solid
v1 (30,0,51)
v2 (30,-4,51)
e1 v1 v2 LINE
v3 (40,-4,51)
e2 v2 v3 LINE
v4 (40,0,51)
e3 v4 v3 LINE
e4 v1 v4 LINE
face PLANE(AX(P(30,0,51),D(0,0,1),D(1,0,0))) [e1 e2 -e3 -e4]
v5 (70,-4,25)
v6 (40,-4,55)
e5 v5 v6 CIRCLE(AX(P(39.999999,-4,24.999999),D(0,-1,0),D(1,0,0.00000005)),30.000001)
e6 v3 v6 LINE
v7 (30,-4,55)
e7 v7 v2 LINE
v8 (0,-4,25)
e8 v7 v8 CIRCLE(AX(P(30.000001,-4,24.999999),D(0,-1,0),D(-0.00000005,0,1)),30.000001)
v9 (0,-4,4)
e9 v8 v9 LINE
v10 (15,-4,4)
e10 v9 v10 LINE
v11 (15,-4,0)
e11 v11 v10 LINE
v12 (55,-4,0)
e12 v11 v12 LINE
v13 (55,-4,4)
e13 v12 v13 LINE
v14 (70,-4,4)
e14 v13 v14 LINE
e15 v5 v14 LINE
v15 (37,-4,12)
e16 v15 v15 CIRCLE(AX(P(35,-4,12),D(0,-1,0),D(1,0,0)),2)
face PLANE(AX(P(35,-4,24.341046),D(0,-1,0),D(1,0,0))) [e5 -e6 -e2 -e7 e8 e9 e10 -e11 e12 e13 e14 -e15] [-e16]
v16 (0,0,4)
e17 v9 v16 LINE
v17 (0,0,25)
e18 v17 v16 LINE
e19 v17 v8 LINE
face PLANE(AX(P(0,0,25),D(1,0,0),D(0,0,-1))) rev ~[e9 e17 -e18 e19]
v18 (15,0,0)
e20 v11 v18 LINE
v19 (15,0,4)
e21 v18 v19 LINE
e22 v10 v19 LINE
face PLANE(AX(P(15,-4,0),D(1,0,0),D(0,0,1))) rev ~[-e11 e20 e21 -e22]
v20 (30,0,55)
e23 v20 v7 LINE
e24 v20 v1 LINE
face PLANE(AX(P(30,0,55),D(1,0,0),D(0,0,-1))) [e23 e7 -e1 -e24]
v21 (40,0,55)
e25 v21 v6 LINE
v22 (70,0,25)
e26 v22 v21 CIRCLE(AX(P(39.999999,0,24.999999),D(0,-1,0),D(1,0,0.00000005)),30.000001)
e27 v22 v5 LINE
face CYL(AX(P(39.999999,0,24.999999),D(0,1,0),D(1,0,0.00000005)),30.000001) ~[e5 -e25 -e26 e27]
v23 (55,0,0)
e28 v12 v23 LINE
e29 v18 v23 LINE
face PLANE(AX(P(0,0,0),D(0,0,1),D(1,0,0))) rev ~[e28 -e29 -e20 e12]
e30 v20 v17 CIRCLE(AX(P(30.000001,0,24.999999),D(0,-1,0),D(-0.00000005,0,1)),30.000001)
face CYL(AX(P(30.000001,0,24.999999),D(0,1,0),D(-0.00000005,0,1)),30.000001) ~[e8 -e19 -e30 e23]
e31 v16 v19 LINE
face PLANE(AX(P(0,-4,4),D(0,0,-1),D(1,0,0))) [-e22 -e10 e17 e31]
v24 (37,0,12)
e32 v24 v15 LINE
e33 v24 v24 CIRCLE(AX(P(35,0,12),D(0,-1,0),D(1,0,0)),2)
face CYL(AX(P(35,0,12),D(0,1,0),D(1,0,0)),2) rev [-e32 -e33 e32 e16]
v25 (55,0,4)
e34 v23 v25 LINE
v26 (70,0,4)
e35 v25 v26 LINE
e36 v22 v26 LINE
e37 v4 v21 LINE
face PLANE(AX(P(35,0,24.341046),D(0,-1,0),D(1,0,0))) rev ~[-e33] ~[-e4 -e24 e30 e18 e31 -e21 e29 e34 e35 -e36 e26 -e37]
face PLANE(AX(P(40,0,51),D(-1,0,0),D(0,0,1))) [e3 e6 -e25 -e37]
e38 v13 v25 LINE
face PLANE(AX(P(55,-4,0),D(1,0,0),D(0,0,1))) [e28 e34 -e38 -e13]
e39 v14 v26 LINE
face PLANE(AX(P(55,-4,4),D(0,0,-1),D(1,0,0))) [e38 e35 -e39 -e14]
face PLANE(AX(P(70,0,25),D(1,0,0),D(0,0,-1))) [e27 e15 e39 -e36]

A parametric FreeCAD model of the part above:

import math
import FreeCAD as App
import Part
import Sketcher

V = App.Vector

doc = App.newDocument("Part")
body = doc.addObject("PartDesign::Body", "Body")

sketch1 = doc.addObject("Sketcher::SketchObject", "Sketch")
body.addObject(sketch1)
sketch1.AttachmentSupport = (doc.XZ_Plane, [""])
sketch1.MapMode = "FlatFace"
sketch1.addGeometry([
    Part.LineSegment(V(0, 25, 0), V(0, 0, 0)),
    Part.LineSegment(V(0, 0, 0), V(70, 0, 0)),
    Part.LineSegment(V(70, 0, 0), V(70, 25, 0)),
    Part.ArcOfCircle(Part.Circle(V(40, 25, 0), V(0, 0, 1), 30), math.radians(0), math.radians(90)),
    Part.LineSegment(V(40, 55, 0), V(40, 51, 0)),
    Part.LineSegment(V(40, 51, 0), V(30, 51, 0)),
    Part.LineSegment(V(30, 51, 0), V(30, 55, 0)),
    Part.ArcOfCircle(Part.Circle(V(30, 25, 0), V(0, 0, 1), 30), math.radians(90), math.radians(180)),
    Part.Circle(V(35, 12, 0), V(0, 0, 1), 2),
], False)
sketch1.addConstraint([
    Sketcher.Constraint("Coincident", 0, 2, 1, 1),
    Sketcher.Constraint("Coincident", 1, 2, 2, 1),
    Sketcher.Constraint("Tangent", 2, 2, 3, 1),
    Sketcher.Constraint("Coincident", 3, 2, 4, 1),
    Sketcher.Constraint("Coincident", 4, 2, 5, 1),
    Sketcher.Constraint("Coincident", 5, 2, 6, 1),
    Sketcher.Constraint("Coincident", 6, 2, 7, 1),
    Sketcher.Constraint("Tangent", 7, 2, 0, 1),
    Sketcher.Constraint("Vertical", 0),
    Sketcher.Constraint("Horizontal", 1),
    Sketcher.Constraint("Vertical", 2),
    Sketcher.Constraint("Vertical", 4),
    Sketcher.Constraint("Horizontal", 5),
    Sketcher.Constraint("Vertical", 6),
    Sketcher.Constraint("Coincident", 0, 2, -1, 1),
    Sketcher.Constraint("Equal", 3, 7),
    Sketcher.Constraint("Horizontal", 3, 3, 7, 3),
    Sketcher.Constraint("Vertical", 7, 3, 5, 2),
    Sketcher.Constraint("Diameter", 8, 4.0),
    Sketcher.Constraint("Radius", 3, 30.000001),
    Sketcher.Constraint("DistanceX", 1, 1, 1, 2, 70.0),
    Sketcher.Constraint("DistanceX", 5, 2, 5, 1, 10.0),
    Sketcher.Constraint("DistanceY", 0, 2, 0, 1, 25.0),
    Sketcher.Constraint("DistanceY", 4, 2, 4, 1, 4.0),
    Sketcher.Constraint("DistanceX", -1, 1, 8, 3, 35.0),
    Sketcher.Constraint("DistanceY", -1, 1, 8, 3, 12.0),
])
pad1 = doc.addObject("PartDesign::Pad", "Pad")
body.addObject(pad1)
pad1.Profile = sketch1
pad1.Length = 4

sketch2 = doc.addObject("Sketcher::SketchObject", "Sketch001")
body.addObject(sketch2)
sketch2.AttachmentSupport = (doc.XZ_Plane, [""])
sketch2.MapMode = "FlatFace"
sketch2.AttachmentOffset = App.Placement(V(0, 0, 4), App.Rotation())
sketch2.addGeometry([
    Part.LineSegment(V(0, 4, 0), V(0, 0, 0)),
    Part.LineSegment(V(0, 0, 0), V(15, 0, 0)),
    Part.LineSegment(V(15, 0, 0), V(15, 4, 0)),
    Part.LineSegment(V(15, 4, 0), V(0, 4, 0)),
    Part.LineSegment(V(55, 4, 0), V(55, 0, 0)),
    Part.LineSegment(V(55, 0, 0), V(70, 0, 0)),
    Part.LineSegment(V(70, 0, 0), V(70, 4, 0)),
    Part.LineSegment(V(70, 4, 0), V(55, 4, 0)),
], False)
sketch2.addConstraint([
    Sketcher.Constraint("Coincident", 0, 2, 1, 1),
    Sketcher.Constraint("Coincident", 1, 2, 2, 1),
    Sketcher.Constraint("Coincident", 2, 2, 3, 1),
    Sketcher.Constraint("Coincident", 3, 2, 0, 1),
    Sketcher.Constraint("Coincident", 4, 2, 5, 1),
    Sketcher.Constraint("Coincident", 5, 2, 6, 1),
    Sketcher.Constraint("Coincident", 6, 2, 7, 1),
    Sketcher.Constraint("Coincident", 7, 2, 4, 1),
    Sketcher.Constraint("Vertical", 0),
    Sketcher.Constraint("Horizontal", 1),
    Sketcher.Constraint("Vertical", 2),
    Sketcher.Constraint("Horizontal", 3),
    Sketcher.Constraint("Vertical", 4),
    Sketcher.Constraint("Horizontal", 5),
    Sketcher.Constraint("Vertical", 6),
    Sketcher.Constraint("Horizontal", 7),
    Sketcher.Constraint("Coincident", 0, 2, -1, 1),
    Sketcher.Constraint("PointOnObject", 4, 2, -1),
    Sketcher.Constraint("Horizontal", 3, 2, 6, 2),
    Sketcher.Constraint("Equal", 3, 5),
    Sketcher.Constraint("DistanceX", 1, 1, 1, 2, 15.0),
    Sketcher.Constraint("DistanceY", 0, 2, 0, 1, 4.0),
    Sketcher.Constraint("DistanceX", -1, 1, 4, 2, 55.0),
])
pocket1 = doc.addObject("PartDesign::Pocket", "Pocket")
body.addObject(pocket1)
pocket1.Profile = sketch2
pocket1.Length = 5

doc.recompute()
